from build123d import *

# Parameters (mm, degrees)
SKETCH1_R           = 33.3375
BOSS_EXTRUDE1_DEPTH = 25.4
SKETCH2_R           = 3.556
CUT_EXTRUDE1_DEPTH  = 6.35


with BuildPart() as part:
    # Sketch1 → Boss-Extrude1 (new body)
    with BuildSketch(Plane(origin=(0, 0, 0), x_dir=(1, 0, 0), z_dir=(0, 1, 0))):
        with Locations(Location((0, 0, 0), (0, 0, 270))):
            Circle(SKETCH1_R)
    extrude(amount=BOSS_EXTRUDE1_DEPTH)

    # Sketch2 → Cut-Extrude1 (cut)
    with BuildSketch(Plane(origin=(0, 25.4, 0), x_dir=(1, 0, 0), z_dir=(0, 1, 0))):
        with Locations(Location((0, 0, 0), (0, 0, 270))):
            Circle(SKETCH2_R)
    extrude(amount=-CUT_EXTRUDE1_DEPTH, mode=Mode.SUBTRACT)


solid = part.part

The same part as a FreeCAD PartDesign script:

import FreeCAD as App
import Part
import Sketcher
from FreeCAD import Vector
Q = App.Units.Quantity

doc = App.newDocument("Part")
params = doc.addObject("Spreadsheet::Sheet", "Params")
for row, (alias, value) in enumerate([
    ("sketch1_diameter", "2.625 in"),
    ("pad1_length", "1 in"),
    ("sketch2_diameter", "0.28 in"),
    ("pocket1_length", "0.25 in"),
], start=1):
    params.set(f"A{row}", alias)
    params.set(f"B{row}", "=" + value)
    params.setAlias(f"B{row}", alias)

body = doc.addObject("PartDesign::Body", "Body")

sketch1 = body.newObject("Sketcher::SketchObject", "Sketch")
sketch1.AttachmentSupport = (doc.getObject("XZ_Plane"), [""])
sketch1.MapMode = "FlatFace"
sketch1.addGeometry(Part.Circle(Vector(0, 0, 0), Vector(0, 0, 1), 33.3375), False)
sketch1.addConstraint([
    Sketcher.Constraint("Coincident", 0, 3, -1, 1),
    Sketcher.Constraint("Diameter", 0, Q("2.625 in")),
])
sketch1.setExpression("Constraints[1]", "Params.sketch1_diameter")
pad1 = body.newObject("PartDesign::Pad", "Pad")
pad1.Profile = sketch1
pad1.setExpression("Length", "Params.pad1_length")
pad1.Reversed = True

sketch2 = body.newObject("Sketcher::SketchObject", "Sketch001")
sketch2.AttachmentSupport = (doc.getObject("XZ_Plane"), [""])
sketch2.MapMode = "FlatFace"
sketch2.AttachmentOffset = App.Placement(Vector(0, 0, -1 * 25.4), App.Rotation())
sketch2.addGeometry(Part.Circle(Vector(0, 0, 0), Vector(0, 0, 1), 3.556), False)
sketch2.addConstraint([
    Sketcher.Constraint("Coincident", 0, 3, -1, 1),
    Sketcher.Constraint("Diameter", 0, Q("0.28 in")),
])
sketch2.setExpression("Constraints[1]", "Params.sketch2_diameter")
pocket1 = body.newObject("PartDesign::Pocket", "Pocket")
pocket1.Profile = sketch2
pocket1.setExpression("Length", "Params.pocket1_length")
pocket1.Reversed = True

doc.recompute()
